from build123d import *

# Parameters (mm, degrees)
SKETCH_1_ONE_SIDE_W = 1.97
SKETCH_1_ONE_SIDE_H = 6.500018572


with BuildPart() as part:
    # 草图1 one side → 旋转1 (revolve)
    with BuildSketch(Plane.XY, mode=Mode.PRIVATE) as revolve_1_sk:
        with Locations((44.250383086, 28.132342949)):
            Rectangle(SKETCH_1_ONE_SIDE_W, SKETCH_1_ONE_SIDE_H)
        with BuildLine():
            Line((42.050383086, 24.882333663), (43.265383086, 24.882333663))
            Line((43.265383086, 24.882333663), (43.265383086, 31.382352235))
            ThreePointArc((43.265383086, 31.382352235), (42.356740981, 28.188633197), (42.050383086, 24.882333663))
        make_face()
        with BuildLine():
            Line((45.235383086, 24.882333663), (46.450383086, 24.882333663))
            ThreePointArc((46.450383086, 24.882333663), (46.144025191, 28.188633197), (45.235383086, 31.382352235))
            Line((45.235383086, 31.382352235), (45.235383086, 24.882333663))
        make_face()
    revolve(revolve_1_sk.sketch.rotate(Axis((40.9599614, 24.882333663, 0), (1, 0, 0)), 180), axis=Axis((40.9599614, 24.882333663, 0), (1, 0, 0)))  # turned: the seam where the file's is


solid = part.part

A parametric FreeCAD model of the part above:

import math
import FreeCAD as App
import Part
import Sketcher

V = App.Vector
Q = App.Units.Quantity

doc = App.newDocument("Part")
body = doc.addObject("PartDesign::Body", "Body")

sketch1 = body.newObject("Sketcher::SketchObject", "Sketch")
sketch1.AttachmentSupport = (doc.getObject("XY_Plane"), [""])
sketch1.MapMode = "FlatFace"
sketch1.addGeometry(Part.LineSegment(V(45.2, 31.4, 0), V(43.3, 31.4, 0)), False)
sketch1.addGeometry(Part.ArcOfCircle(Part.Circle(V(60, 24.9, 0), V(0, 0, 1), 18), math.radians(159), math.radians(180)), False)
sketch1.addGeometry(Part.LineSegment(V(42.1, 24.9, 0), V(46.5, 24.9, 0)), False)
sketch1.addGeometry(Part.ArcOfCircle(Part.Circle(V(28.5, 24.9, 0), V(0, 0, 1), 18), math.radians(0), math.radians(21)), False)
sketch1.addGeometry(Part.LineSegment(V(28.5, 24.9, 0), V(60, 24.9, 0)), True)
sketch1.addConstraint(Sketcher.Constraint("Coincident", 0, 2, 1, 1))
sketch1.addConstraint(Sketcher.Constraint("Coincident", 1, 2, 2, 1))
sketch1.addConstraint(Sketcher.Constraint("Coincident", 2, 2, 3, 1))
sketch1.addConstraint(Sketcher.Constraint("Coincident", 3, 2, 0, 1))
sketch1.addConstraint(Sketcher.Constraint("Horizontal", 0))
sketch1.addConstraint(Sketcher.Constraint("Horizontal", 2))
sketch1.addConstraint(Sketcher.Constraint("Horizontal", 4))
sketch1.addConstraint(Sketcher.Constraint("Coincident", 4, 1, 3, 3))
sketch1.addConstraint(Sketcher.Constraint("Coincident", 4, 2, 1, 3))
sketch1.addConstraint(Sketcher.Constraint("Equal", 1, 3))
sketch1.addConstraint(Sketcher.Constraint("Horizontal", 3, 3, 1, 2))
sketch1.addConstraint(Sketcher.Constraint("DistanceX", 2, 1, 2, 2, Q("4.4 mm")))
sketch1.addConstraint(Sketcher.Constraint("DistanceX", 0, 2, 0, 1, Q("1.97 mm")))
sketch1.addConstraint(Sketcher.Constraint("Radius", 1, Q("17.994431 mm")))
sketch1.addConstraint(Sketcher.Constraint("DistanceX", -1, 1, 1, 3, Q("60.044814 mm")))
sketch1.addConstraint(Sketcher.Constraint("DistanceY", -1, 1, 1, 3, Q("24.882334 mm")))
revolution = body.newObject("PartDesign::Revolution", "Revolution")
revolution.Profile = sketch1
revolution.ReferenceAxis = (sketch1, ["Axis0"])
revolution.Angle = 360

doc.recompute()
